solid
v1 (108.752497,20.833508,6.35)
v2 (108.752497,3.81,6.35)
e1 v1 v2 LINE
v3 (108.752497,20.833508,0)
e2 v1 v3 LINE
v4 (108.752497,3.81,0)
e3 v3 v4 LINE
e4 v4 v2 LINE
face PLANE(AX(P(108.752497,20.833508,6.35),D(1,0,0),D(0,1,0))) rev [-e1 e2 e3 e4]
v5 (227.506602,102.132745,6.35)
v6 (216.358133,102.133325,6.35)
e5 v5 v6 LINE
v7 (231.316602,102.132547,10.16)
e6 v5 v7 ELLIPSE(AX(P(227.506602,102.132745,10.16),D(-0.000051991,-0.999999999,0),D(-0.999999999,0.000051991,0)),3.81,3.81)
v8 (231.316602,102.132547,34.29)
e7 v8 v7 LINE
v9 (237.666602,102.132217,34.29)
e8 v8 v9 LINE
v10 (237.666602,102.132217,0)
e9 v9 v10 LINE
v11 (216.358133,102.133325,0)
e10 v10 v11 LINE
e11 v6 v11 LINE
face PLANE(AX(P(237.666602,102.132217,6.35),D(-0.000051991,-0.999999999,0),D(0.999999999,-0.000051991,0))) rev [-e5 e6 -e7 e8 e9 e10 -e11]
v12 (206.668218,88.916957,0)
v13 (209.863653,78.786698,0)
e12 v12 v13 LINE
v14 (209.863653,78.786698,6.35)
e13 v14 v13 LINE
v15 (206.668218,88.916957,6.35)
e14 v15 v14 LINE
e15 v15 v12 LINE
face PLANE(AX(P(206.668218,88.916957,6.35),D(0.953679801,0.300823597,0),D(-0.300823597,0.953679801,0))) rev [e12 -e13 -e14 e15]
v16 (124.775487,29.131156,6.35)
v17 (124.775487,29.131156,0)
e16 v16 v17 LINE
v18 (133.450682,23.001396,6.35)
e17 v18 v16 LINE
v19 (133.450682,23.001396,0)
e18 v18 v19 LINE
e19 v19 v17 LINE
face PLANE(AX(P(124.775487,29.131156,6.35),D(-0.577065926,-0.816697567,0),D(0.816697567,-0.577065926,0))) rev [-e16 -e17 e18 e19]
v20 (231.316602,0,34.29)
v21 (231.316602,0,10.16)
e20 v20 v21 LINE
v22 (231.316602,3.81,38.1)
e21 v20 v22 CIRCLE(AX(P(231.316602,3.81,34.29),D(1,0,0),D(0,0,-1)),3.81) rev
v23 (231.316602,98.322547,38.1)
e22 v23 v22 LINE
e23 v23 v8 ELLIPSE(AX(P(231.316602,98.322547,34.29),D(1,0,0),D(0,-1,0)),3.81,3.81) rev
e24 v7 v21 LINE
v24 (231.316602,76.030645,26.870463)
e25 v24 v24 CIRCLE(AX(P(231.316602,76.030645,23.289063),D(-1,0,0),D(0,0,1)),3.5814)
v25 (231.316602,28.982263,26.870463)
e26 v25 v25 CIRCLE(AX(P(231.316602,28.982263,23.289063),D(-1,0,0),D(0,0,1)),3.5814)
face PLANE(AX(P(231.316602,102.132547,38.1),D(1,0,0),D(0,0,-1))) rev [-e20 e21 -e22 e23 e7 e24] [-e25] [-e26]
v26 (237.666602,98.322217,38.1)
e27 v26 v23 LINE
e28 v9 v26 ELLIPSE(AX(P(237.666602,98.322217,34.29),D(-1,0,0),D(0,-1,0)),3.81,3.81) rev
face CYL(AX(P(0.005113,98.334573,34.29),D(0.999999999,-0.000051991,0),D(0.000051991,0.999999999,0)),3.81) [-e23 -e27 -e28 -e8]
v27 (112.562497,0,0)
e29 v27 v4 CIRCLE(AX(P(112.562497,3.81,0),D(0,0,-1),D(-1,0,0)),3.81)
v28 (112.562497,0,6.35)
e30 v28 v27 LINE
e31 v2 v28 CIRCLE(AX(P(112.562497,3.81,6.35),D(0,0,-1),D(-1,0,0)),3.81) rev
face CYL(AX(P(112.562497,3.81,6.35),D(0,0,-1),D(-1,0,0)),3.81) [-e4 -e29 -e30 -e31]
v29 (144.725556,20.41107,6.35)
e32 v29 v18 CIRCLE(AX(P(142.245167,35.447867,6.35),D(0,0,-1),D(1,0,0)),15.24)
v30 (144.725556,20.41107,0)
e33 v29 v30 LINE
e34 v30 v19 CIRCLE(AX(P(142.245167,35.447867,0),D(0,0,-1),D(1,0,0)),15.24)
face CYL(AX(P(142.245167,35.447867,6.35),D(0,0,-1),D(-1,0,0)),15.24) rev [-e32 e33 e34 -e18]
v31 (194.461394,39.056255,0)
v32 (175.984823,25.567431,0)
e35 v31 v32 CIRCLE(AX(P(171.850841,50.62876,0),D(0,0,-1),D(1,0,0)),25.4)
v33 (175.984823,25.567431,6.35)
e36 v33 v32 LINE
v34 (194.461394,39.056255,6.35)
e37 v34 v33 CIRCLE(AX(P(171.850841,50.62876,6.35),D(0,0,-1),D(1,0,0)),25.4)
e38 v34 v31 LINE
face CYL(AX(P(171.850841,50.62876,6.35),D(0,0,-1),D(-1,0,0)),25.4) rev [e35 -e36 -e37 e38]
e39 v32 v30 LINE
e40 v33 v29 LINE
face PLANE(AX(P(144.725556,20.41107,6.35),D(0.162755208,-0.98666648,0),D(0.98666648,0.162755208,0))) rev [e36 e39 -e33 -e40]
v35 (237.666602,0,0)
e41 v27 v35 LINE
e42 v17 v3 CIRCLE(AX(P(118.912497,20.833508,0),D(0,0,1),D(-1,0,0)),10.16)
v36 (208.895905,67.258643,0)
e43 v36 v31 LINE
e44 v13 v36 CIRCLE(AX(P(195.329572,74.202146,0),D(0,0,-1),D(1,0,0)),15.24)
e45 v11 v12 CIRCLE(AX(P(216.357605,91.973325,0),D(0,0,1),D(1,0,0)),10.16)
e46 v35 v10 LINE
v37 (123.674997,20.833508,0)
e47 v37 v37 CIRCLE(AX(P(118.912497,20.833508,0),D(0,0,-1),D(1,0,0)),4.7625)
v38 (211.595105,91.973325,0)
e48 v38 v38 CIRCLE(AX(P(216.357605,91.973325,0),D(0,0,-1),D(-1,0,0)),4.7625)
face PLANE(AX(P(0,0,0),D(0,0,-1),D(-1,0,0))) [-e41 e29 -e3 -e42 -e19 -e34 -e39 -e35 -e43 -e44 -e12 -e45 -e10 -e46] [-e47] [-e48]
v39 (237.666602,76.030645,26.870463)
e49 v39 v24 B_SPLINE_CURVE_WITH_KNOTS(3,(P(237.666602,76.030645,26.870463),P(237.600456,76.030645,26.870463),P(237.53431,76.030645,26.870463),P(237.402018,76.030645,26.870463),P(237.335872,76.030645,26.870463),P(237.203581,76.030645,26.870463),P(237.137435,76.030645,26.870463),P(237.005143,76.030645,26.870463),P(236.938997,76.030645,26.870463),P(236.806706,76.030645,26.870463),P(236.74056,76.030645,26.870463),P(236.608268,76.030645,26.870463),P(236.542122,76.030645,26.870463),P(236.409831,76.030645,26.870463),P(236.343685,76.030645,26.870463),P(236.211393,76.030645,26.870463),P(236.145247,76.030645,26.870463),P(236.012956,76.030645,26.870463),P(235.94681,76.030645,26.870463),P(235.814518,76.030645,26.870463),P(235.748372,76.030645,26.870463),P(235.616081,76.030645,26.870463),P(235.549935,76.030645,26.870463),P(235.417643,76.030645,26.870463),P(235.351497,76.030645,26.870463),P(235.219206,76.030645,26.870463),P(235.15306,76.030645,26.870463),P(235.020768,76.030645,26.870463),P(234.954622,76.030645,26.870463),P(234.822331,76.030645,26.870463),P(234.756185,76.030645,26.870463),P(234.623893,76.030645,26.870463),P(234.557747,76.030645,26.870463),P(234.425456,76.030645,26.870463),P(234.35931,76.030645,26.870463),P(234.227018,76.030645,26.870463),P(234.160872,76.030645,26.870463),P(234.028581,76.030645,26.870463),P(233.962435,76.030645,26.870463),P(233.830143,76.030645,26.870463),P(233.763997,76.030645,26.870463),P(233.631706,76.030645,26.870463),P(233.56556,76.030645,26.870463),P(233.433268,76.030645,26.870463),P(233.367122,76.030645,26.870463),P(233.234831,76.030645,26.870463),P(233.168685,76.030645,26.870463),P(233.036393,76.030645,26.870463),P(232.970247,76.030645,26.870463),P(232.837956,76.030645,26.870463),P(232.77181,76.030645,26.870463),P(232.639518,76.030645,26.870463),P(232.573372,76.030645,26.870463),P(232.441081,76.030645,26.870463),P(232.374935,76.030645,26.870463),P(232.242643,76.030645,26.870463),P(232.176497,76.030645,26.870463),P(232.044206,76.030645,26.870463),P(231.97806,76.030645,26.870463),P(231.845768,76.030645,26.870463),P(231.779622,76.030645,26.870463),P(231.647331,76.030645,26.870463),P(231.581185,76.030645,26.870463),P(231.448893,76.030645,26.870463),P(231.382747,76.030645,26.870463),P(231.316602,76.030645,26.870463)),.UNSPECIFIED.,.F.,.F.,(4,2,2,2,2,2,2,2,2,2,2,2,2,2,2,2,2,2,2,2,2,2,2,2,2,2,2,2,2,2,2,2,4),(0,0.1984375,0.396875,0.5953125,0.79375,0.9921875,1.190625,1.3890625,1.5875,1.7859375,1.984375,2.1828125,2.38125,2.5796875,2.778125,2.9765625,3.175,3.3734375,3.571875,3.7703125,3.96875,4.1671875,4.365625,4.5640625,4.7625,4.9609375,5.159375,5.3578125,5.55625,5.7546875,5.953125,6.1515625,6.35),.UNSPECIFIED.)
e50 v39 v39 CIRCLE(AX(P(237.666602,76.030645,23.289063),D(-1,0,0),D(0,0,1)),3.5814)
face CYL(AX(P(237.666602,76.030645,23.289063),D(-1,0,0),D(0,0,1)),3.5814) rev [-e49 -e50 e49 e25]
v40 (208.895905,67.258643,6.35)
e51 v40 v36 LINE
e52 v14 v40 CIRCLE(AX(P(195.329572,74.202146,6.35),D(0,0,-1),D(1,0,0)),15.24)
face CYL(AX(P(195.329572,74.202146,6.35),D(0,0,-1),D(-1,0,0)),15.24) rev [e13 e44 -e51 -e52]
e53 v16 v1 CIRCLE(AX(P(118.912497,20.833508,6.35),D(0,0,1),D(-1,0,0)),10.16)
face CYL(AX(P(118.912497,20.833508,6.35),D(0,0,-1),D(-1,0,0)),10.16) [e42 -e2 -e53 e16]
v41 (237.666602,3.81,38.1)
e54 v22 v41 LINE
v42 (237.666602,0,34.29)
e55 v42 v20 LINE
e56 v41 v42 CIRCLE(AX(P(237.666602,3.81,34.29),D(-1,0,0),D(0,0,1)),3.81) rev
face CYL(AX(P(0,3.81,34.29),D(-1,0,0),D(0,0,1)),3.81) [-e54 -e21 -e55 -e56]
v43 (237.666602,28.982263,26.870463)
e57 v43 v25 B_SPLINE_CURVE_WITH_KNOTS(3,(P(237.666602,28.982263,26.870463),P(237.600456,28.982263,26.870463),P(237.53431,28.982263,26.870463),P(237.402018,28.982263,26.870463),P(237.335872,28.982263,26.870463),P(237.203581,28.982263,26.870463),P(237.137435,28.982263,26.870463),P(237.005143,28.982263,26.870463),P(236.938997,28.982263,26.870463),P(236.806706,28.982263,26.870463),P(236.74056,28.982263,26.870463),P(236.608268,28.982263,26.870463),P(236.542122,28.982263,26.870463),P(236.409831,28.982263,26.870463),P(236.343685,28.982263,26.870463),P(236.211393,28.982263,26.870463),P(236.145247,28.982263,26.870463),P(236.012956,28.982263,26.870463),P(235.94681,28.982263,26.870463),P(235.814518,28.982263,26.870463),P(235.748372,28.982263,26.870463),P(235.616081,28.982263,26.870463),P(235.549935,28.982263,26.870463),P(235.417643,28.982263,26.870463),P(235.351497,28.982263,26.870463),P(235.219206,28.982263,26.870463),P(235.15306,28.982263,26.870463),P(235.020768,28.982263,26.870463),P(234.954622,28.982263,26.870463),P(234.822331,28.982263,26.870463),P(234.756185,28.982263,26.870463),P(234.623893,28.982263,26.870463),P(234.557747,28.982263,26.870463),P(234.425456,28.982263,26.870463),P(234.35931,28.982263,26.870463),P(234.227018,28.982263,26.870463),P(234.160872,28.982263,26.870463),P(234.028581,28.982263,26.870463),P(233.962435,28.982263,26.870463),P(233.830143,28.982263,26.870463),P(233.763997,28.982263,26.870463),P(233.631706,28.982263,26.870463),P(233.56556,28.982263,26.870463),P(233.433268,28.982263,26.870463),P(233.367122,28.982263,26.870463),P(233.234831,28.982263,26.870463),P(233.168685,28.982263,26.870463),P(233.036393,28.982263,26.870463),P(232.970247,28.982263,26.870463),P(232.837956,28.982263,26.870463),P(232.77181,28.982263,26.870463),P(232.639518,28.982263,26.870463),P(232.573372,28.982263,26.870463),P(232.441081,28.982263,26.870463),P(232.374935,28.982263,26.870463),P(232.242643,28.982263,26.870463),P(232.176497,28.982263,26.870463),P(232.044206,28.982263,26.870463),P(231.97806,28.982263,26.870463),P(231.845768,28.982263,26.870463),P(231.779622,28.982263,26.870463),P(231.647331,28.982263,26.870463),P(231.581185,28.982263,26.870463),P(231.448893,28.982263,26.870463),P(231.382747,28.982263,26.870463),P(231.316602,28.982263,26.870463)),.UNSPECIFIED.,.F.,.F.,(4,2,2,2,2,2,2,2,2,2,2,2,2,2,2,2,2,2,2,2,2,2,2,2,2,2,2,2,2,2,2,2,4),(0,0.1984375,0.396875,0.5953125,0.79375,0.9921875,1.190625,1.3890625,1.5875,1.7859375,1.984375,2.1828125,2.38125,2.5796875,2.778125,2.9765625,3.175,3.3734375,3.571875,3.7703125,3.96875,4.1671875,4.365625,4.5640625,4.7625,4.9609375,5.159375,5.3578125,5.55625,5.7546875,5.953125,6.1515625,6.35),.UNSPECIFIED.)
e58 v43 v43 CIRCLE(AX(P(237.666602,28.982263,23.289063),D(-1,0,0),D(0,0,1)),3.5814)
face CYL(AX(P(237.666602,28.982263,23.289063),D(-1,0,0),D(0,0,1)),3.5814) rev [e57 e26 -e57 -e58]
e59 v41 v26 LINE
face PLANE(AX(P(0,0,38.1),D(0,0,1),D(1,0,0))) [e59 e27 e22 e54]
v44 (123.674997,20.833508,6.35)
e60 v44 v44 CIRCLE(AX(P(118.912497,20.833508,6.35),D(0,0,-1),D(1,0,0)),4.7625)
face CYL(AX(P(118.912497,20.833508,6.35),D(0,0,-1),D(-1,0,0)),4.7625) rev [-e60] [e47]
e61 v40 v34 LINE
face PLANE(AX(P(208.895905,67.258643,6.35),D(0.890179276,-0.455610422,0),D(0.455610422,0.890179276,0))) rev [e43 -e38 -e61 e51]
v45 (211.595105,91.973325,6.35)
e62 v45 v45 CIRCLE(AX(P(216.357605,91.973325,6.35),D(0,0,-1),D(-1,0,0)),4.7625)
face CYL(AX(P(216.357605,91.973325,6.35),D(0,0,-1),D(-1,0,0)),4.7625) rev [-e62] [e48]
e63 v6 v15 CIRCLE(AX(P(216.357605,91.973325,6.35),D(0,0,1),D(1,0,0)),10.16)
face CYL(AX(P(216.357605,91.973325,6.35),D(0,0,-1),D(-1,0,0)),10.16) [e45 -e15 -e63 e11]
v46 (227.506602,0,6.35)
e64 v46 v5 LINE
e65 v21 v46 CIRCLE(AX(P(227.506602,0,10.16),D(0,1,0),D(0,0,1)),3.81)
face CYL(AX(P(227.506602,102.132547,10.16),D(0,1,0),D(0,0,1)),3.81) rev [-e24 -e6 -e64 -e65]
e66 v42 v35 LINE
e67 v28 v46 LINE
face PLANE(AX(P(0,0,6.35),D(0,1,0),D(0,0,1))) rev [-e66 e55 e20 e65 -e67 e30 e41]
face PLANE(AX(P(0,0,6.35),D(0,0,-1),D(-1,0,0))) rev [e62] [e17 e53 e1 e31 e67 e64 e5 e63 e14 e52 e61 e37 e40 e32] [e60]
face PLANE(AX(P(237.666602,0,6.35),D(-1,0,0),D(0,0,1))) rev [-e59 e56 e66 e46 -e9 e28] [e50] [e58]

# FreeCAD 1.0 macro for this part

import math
import FreeCAD as App
import Part
import Sketcher
from FreeCAD import Vector
Q = App.Units.Quantity


def edges_at(feature, points):
    """Names of the edges that pass closest to the given points."""
    edges = feature.Shape.Edges
    near = lambda p: min(range(len(edges)), key=lambda i: edges[i].distToShape(Part.Vertex(*p))[0])
    return sorted({f"Edge{near(p) + 1}" for p in points})


def add_polygon(sketch, points):
    """Adds a closed chain of lines whose ends are joined by coincident constraints."""
    first, n = sketch.GeometryCount, len(points)
    for a, b in zip(points, points[1:] + points[:1]):
        sketch.addGeometry(Part.LineSegment(App.Vector(*a, 0), App.Vector(*b, 0)), False)
    for i in range(n):
        sketch.addConstraint(Sketcher.Constraint("Coincident", first + i, 2, first + (i + 1) % n, 1))

doc = App.newDocument("Part")
body = doc.addObject("PartDesign::Body", "Body")

# Sketch on XY plane
sketch1 = body.newObject("Sketcher::SketchObject", "Sketch")
sketch1.AttachmentSupport = (doc.getObject("XY_Plane"), [""])
sketch1.MapMode = "FlatFace"
add_polygon(sketch1, [(0, 144.870829), (0, 0), (237.666602, 0), (237.666602, 144.870829)])  # lines 0-3
sketch1.addConstraint([
    Sketcher.Constraint("Vertical", 0),
    Sketcher.Constraint("Horizontal", 1),
    Sketcher.Constraint("Vertical", 2),
    Sketcher.Constraint("Horizontal", 3),
    Sketcher.Constraint("Coincident", 0, 2, -1, 1),
    Sketcher.Constraint("DistanceX", 1, 1, 1, 2, Q("237.666602 mm")),
    Sketcher.Constraint("DistanceY", 0, 2, 0, 1, Q("144.870829 mm")),
])
pad1 = body.newObject("PartDesign::Pad", "Pad")
pad1.Profile = sketch1
pad1.Length = Q("0.25 in")

# Sketch on XY plane
sketch2 = body.newObject("Sketcher::SketchObject", "Sketch001")
sketch2.AttachmentSupport = (doc.getObject("XY_Plane"), [""])
sketch2.MapMode = "FlatFace"
sketch2.addGeometry([
    Part.Circle(Vector(216.357605, 91.973325, 0), Vector(0, 0, 1), 4.7625),  # 0
    Part.Circle(Vector(118.912497, 20.833508, 0), Vector(0, 0, 1), 4.7625),  # 1
    Part.LineSegment(Vector(237.666602, 102.132217, 0), Vector(216.358133, 102.133325, 0)),  # 2
    Part.ArcOfCircle(Part.Circle(Vector(216.357605, 91.973325, 0), Vector(0, 0, 1), 10.16), math.radians(89.997021), math.radians(197.507077)),  # 3
    Part.LineSegment(Vector(206.668218, 88.916957, 0), Vector(209.863653, 78.786698, 0)),  # 4
    Part.ArcOfCircle(Part.Circle(Vector(195.329572, 74.202146, 0), Vector(0, 0, 1), 15.24), math.radians(-27.104217), math.radians(17.507077)),  # 5
    Part.LineSegment(Vector(208.895905, 67.258643, 0), Vector(194.461394, 39.056255, 0)),  # 6
    Part.ArcOfCircle(Part.Circle(Vector(171.850841, 50.62876, 0), Vector(0, 0, 1), 25.4), math.radians(-80.633145), math.radians(-27.104217)),  # 7
    Part.LineSegment(Vector(175.984823, 25.567431, 0), Vector(144.725556, 20.41107, 0)),  # 8
    Part.ArcOfCircle(Part.Circle(Vector(142.245167, 35.447867, 0), Vector(0, 0, 1), 15.24), math.radians(-125.244439), math.radians(-80.633145)),  # 9
    Part.LineSegment(Vector(133.450682, 23.001396, 0), Vector(124.775487, 29.131156, 0)),  # 10
    Part.ArcOfCircle(Part.Circle(Vector(118.912497, 20.833508, 0), Vector(0, 0, 1), 10.16), math.radians(54.755561), math.radians(180)),  # 11
    Part.LineSegment(Vector(108.752497, 20.833508, 0), Vector(108.752497, 0, 0)),  # 12
    Part.LineSegment(Vector(108.752497, 0, 0), Vector(-33.788558, -29.414687, 0)),  # 13
    Part.LineSegment(Vector(-33.788558, -29.414687, 0), Vector(-48.645656, 190.527143, 0)),  # 14
    Part.LineSegment(Vector(-48.645656, 190.527143, 0), Vector(347.111634, 192.661311, 0)),  # 15
    Part.LineSegment(Vector(347.111634, 192.661311, 0), Vector(237.666602, 102.132217, 0)),  # 16
], False)
sketch2.addConstraint([
    Sketcher.Constraint("Coincident", 2, 2, 3, 1),
    Sketcher.Constraint("Coincident", 3, 2, 4, 1),
    Sketcher.Constraint("Coincident", 4, 2, 5, 2),
    Sketcher.Constraint("Coincident", 5, 1, 6, 1),
    Sketcher.Constraint("Coincident", 6, 2, 7, 2),
    Sketcher.Constraint("Coincident", 7, 1, 8, 1),
    Sketcher.Constraint("Coincident", 8, 2, 9, 2),
    Sketcher.Constraint("Coincident", 9, 1, 10, 1),
    Sketcher.Constraint("Coincident", 10, 2, 11, 1),
    Sketcher.Constraint("Coincident", 11, 2, 12, 1),
    Sketcher.Constraint("Coincident", 12, 2, 13, 1),
    Sketcher.Constraint("Coincident", 13, 2, 14, 1),
    Sketcher.Constraint("Coincident", 14, 2, 15, 1),
    Sketcher.Constraint("Coincident", 15, 2, 16, 1),
    Sketcher.Constraint("Coincident", 16, 2, 2, 1),
    Sketcher.Constraint("Vertical", 12),
    Sketcher.Constraint("Coincident", 3, 3, 0, 3),
    Sketcher.Constraint("Coincident", 11, 3, 1, 3),
    Sketcher.Constraint("PointOnObject", 12, 2, -1),
    Sketcher.Constraint("Radius", 7, Q("1 in")),
    Sketcher.Constraint("Radius", 3, Q("0.4 in")),
    Sketcher.Constraint("Radius", 5, Q("0.6 in")),
    Sketcher.Constraint("Radius", 9, Q("0.6 in")),
    Sketcher.Constraint("Radius", 11, Q("0.4 in")),
    Sketcher.Constraint("Diameter", 0, Q("0.375 in")),
    Sketcher.Constraint("Diameter", 1, Q("0.375 in")),
    Sketcher.Constraint("DistanceY", 8, 2, 9, 3, Q("0.5919999 in")),
    Sketcher.Constraint("Distance", 16, Q("5.5919001 in")),
    Sketcher.Constraint("DistanceY", 12, 2, 12, 1, Q("20.833508 mm")),
    Sketcher.Constraint("DistanceX", -1, 1, 16, 2, Q("237.666602 mm")),
    Sketcher.Constraint("DistanceX", 5, 1, 3, 3, Q("7.461701 mm")),
    Sketcher.Constraint("DistanceX", 14, 2, 13, 2, Q("14.857098 mm")),
    Sketcher.Constraint("DistanceX", 2, 2, 15, 2, Q("130.7535 mm")),
    Sketcher.Constraint("Distance", 2, Q("21.308468 mm")),
    Sketcher.Constraint("DistanceY", -1, 1, 1, 3, Q("20.833508 mm")),
    Sketcher.Constraint("DistanceX", -1, 1, 7, 3, Q("171.850841 mm")),
    Sketcher.Constraint("DistanceY", -1, 1, 7, 3, Q("50.62876 mm")),
    Sketcher.Constraint("DistanceX", -1, 1, 3, 2, Q("206.668218 mm")),
    Sketcher.Constraint("DistanceY", -1, 1, 7, 1, Q("25.567431 mm")),
    Sketcher.Constraint("DistanceY", -1, 1, 8, 2, Q("20.41107 mm")),
    Sketcher.Constraint("DistanceY", -1, 1, 15, 2, Q("192.661311 mm")),
    Sketcher.Constraint("DistanceY", 5, 3, 3, 3, Q("17.771179 mm")),
    Sketcher.Constraint("DistanceX", 7, 3, 5, 3, Q("23.478732 mm")),
    Sketcher.Constraint("DistanceX", 1, 3, 9, 3, Q("23.332669 mm")),
    Sketcher.Constraint("DistanceY", 9, 3, 5, 3, Q("38.754279 mm")),
    Sketcher.Constraint("DistanceX", 9, 3, 3, 3, Q("74.112438 mm")),
    Sketcher.Constraint("DistanceX", 0, 3, 2, 2, Q("0.000528 mm")),
    Sketcher.Constraint("DistanceY", 4, 2, 3, 2, Q("10.130259 mm")),
    Sketcher.Constraint("DistanceX", 6, 2, 5, 1, Q("14.43451 mm")),
    Sketcher.Constraint("DistanceY", 1, 3, 9, 1, Q("2.167888 mm")),
    Sketcher.Constraint("DistanceX", 11, 3, 10, 2, Q("5.86299 mm")),
    Sketcher.Constraint("DistanceY", 13, 2, 14, 2, Q("219.941829 mm")),
    Sketcher.Constraint("Distance", 13, Q("145.544414 mm")),
    Sketcher.Constraint("Distance", 15, Q("395.763044 mm")),
])
pocket1 = body.newObject("PartDesign::Pocket", "Pocket")
pocket1.Profile = sketch2
pocket1.Type = "ThroughAll"
pocket1.Reversed = True

# Sketch on XY plane
sketch3 = body.newObject("Sketcher::SketchObject", "Sketch002")
sketch3.AttachmentSupport = (doc.getObject("XY_Plane"), [""])
sketch3.MapMode = "FlatFace"
sketch3.AttachmentOffset = App.Placement(Vector(0, 0, 0.25 * 25.4), App.Rotation())
add_polygon(sketch3, [(237.666602, 102.132217), (231.316602, 102.132547), (231.316602, 0), (237.666602, 0)])  # lines 0-3
sketch3.addConstraint([
    Sketcher.Constraint("Vertical", 1),
    Sketcher.Constraint("Horizontal", 2),
    Sketcher.Constraint("Vertical", 3),
    Sketcher.Constraint("PointOnObject", 1, 2, -1),
    Sketcher.Constraint("DistanceX", 2, 1, 2, 2, Q("0.25 in")),
    Sketcher.Constraint("DistanceX", -1, 1, 0, 2, Q("231.316602 mm")),
    Sketcher.Constraint("DistanceY", 1, 2, 1, 1, Q("102.132547 mm")),
    Sketcher.Constraint("DistanceY", 3, 1, 3, 2, Q("102.132217 mm")),
])
pad2 = body.newObject("PartDesign::Pad", "Pad001")
pad2.Profile = sketch3
pad2.Length = Q("1.25 in")

# Sketch on YZ plane
sketch4 = body.newObject("Sketcher::SketchObject", "Sketch003")
sketch4.AttachmentSupport = (doc.getObject("YZ_Plane"), [""])
sketch4.MapMode = "FlatFace"
sketch4.AttachmentOffset = App.Placement(Vector(0, 0, 231.316602), App.Rotation())
sketch4.addGeometry([
    Part.Circle(Vector(76.030645, 23.289063, 0), Vector(0, 0, 1), 3.5814),
    Part.Circle(Vector(28.982263, 23.289063, 0), Vector(0, 0, 1), 3.5814),
], False)
sketch4.addConstraint([
    Sketcher.Constraint("Equal", 0, 1),
    Sketcher.Constraint("Horizontal", 0, 3, 1, 3),
    Sketcher.Constraint("Diameter", 0, Q("0.282 in")),
    Sketcher.Constraint("DistanceX", 1, 3, 0, 3, Q("47.048382 mm")),
    Sketcher.Constraint("DistanceX", -1, 1, 0, 3, Q("76.030645 mm")),
    Sketcher.Constraint("DistanceY", -1, 1, 0, 3, Q("23.289063 mm")),
])
pocket2 = body.newObject("PartDesign::Pocket", "Pocket001")
pocket2.Profile = sketch4
pocket2.Type = "ThroughAll"
pocket2.Reversed = True
doc.recompute()

fillet = body.newObject("PartDesign::Fillet", "Fillet")
fillet.Base = (pocket2, edges_at(pocket2, [
    (108.752, 0, 3.175),
    (231.317, 51.066, 6.35),
    (234.492, 0, 38.1),
    (234.492, 102.132, 38.1),
]))
fillet.Radius = Q("0.15 in")

doc.recompute()
